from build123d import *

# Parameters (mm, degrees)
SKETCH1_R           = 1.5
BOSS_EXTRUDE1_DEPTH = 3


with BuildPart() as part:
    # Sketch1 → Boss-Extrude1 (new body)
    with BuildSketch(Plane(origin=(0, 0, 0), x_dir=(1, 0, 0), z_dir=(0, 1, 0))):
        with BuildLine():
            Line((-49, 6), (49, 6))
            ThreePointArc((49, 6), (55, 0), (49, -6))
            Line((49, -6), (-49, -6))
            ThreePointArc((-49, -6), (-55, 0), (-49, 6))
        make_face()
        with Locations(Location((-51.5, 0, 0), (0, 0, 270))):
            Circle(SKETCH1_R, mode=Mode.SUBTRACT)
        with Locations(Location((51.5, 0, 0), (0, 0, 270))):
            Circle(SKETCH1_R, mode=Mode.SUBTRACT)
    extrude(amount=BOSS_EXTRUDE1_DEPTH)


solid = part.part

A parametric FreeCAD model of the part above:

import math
import FreeCAD as App
import Part
import Sketcher
from FreeCAD import Vector
Q = App.Units.Quantity

doc = App.newDocument("Part")
body = doc.addObject("PartDesign::Body", "Body")

sketch1 = body.newObject("Sketcher::SketchObject", "Sketch")
sketch1.AttachmentSupport = (doc.getObject("XZ_Plane"), [""])
sketch1.MapMode = "FlatFace"
sketch1.addGeometry(Part.LineSegment(Vector(49, -6, 0), Vector(-49, -6, 0)), False)
sketch1.addGeometry(Part.ArcOfCircle(Part.Circle(Vector(-49, 0, 0), Vector(0, 0, 1), 6), math.radians(90), math.radians(270)), False)
sketch1.addGeometry(Part.LineSegment(Vector(-49, 6, 0), Vector(49, 6, 0)), False)
sketch1.addGeometry(Part.ArcOfCircle(Part.Circle(Vector(49, 0, 0), Vector(0, 0, 1), 6), math.radians(-90), math.radians(90)), False)
sketch1.addGeometry(Part.Circle(Vector(51.5, 0, 0), Vector(0, 0, 1), 1.5), False)
sketch1.addGeometry(Part.Circle(Vector(-51.5, 0, 0), Vector(0, 0, 1), 1.5), False)
sketch1.addConstraint(Sketcher.Constraint("Tangent", 0, 2, 1, 2))
sketch1.addConstraint(Sketcher.Constraint("Tangent", 1, 1, 2, 1))
sketch1.addConstraint(Sketcher.Constraint("Tangent", 2, 2, 3, 2))
sketch1.addConstraint(Sketcher.Constraint("Tangent", 3, 1, 0, 1))
sketch1.addConstraint(Sketcher.Constraint("Horizontal", 0))
sketch1.addConstraint(Sketcher.Constraint("Horizontal", 2))
sketch1.addConstraint(Sketcher.Constraint("Equal", 4, 5))
sketch1.addConstraint(Sketcher.Constraint("Symmetric", 1, 3, 3, 3, -1, 1))
sketch1.addConstraint(Sketcher.Constraint("Symmetric", 4, 3, 5, 3, -1, 1))
sketch1.addConstraint(Sketcher.Constraint("PointOnObject", 4, 3, -1))
sketch1.addConstraint(Sketcher.Constraint("Diameter", 4, Q("3 mm")))
sketch1.addConstraint(Sketcher.Constraint("Radius", 1, Q("6 mm")))
sketch1.addConstraint(Sketcher.Constraint("DistanceX", 0, 2, 0, 1, Q("98 mm")))
sketch1.addConstraint(Sketcher.Constraint("DistanceX", 5, 3, 4, 3, Q("103 mm")))
pad1 = body.newObject("PartDesign::Pad", "Pad")
pad1.Profile = sketch1
pad1.Length = 3
pad1.Reversed = True

doc.recompute()
